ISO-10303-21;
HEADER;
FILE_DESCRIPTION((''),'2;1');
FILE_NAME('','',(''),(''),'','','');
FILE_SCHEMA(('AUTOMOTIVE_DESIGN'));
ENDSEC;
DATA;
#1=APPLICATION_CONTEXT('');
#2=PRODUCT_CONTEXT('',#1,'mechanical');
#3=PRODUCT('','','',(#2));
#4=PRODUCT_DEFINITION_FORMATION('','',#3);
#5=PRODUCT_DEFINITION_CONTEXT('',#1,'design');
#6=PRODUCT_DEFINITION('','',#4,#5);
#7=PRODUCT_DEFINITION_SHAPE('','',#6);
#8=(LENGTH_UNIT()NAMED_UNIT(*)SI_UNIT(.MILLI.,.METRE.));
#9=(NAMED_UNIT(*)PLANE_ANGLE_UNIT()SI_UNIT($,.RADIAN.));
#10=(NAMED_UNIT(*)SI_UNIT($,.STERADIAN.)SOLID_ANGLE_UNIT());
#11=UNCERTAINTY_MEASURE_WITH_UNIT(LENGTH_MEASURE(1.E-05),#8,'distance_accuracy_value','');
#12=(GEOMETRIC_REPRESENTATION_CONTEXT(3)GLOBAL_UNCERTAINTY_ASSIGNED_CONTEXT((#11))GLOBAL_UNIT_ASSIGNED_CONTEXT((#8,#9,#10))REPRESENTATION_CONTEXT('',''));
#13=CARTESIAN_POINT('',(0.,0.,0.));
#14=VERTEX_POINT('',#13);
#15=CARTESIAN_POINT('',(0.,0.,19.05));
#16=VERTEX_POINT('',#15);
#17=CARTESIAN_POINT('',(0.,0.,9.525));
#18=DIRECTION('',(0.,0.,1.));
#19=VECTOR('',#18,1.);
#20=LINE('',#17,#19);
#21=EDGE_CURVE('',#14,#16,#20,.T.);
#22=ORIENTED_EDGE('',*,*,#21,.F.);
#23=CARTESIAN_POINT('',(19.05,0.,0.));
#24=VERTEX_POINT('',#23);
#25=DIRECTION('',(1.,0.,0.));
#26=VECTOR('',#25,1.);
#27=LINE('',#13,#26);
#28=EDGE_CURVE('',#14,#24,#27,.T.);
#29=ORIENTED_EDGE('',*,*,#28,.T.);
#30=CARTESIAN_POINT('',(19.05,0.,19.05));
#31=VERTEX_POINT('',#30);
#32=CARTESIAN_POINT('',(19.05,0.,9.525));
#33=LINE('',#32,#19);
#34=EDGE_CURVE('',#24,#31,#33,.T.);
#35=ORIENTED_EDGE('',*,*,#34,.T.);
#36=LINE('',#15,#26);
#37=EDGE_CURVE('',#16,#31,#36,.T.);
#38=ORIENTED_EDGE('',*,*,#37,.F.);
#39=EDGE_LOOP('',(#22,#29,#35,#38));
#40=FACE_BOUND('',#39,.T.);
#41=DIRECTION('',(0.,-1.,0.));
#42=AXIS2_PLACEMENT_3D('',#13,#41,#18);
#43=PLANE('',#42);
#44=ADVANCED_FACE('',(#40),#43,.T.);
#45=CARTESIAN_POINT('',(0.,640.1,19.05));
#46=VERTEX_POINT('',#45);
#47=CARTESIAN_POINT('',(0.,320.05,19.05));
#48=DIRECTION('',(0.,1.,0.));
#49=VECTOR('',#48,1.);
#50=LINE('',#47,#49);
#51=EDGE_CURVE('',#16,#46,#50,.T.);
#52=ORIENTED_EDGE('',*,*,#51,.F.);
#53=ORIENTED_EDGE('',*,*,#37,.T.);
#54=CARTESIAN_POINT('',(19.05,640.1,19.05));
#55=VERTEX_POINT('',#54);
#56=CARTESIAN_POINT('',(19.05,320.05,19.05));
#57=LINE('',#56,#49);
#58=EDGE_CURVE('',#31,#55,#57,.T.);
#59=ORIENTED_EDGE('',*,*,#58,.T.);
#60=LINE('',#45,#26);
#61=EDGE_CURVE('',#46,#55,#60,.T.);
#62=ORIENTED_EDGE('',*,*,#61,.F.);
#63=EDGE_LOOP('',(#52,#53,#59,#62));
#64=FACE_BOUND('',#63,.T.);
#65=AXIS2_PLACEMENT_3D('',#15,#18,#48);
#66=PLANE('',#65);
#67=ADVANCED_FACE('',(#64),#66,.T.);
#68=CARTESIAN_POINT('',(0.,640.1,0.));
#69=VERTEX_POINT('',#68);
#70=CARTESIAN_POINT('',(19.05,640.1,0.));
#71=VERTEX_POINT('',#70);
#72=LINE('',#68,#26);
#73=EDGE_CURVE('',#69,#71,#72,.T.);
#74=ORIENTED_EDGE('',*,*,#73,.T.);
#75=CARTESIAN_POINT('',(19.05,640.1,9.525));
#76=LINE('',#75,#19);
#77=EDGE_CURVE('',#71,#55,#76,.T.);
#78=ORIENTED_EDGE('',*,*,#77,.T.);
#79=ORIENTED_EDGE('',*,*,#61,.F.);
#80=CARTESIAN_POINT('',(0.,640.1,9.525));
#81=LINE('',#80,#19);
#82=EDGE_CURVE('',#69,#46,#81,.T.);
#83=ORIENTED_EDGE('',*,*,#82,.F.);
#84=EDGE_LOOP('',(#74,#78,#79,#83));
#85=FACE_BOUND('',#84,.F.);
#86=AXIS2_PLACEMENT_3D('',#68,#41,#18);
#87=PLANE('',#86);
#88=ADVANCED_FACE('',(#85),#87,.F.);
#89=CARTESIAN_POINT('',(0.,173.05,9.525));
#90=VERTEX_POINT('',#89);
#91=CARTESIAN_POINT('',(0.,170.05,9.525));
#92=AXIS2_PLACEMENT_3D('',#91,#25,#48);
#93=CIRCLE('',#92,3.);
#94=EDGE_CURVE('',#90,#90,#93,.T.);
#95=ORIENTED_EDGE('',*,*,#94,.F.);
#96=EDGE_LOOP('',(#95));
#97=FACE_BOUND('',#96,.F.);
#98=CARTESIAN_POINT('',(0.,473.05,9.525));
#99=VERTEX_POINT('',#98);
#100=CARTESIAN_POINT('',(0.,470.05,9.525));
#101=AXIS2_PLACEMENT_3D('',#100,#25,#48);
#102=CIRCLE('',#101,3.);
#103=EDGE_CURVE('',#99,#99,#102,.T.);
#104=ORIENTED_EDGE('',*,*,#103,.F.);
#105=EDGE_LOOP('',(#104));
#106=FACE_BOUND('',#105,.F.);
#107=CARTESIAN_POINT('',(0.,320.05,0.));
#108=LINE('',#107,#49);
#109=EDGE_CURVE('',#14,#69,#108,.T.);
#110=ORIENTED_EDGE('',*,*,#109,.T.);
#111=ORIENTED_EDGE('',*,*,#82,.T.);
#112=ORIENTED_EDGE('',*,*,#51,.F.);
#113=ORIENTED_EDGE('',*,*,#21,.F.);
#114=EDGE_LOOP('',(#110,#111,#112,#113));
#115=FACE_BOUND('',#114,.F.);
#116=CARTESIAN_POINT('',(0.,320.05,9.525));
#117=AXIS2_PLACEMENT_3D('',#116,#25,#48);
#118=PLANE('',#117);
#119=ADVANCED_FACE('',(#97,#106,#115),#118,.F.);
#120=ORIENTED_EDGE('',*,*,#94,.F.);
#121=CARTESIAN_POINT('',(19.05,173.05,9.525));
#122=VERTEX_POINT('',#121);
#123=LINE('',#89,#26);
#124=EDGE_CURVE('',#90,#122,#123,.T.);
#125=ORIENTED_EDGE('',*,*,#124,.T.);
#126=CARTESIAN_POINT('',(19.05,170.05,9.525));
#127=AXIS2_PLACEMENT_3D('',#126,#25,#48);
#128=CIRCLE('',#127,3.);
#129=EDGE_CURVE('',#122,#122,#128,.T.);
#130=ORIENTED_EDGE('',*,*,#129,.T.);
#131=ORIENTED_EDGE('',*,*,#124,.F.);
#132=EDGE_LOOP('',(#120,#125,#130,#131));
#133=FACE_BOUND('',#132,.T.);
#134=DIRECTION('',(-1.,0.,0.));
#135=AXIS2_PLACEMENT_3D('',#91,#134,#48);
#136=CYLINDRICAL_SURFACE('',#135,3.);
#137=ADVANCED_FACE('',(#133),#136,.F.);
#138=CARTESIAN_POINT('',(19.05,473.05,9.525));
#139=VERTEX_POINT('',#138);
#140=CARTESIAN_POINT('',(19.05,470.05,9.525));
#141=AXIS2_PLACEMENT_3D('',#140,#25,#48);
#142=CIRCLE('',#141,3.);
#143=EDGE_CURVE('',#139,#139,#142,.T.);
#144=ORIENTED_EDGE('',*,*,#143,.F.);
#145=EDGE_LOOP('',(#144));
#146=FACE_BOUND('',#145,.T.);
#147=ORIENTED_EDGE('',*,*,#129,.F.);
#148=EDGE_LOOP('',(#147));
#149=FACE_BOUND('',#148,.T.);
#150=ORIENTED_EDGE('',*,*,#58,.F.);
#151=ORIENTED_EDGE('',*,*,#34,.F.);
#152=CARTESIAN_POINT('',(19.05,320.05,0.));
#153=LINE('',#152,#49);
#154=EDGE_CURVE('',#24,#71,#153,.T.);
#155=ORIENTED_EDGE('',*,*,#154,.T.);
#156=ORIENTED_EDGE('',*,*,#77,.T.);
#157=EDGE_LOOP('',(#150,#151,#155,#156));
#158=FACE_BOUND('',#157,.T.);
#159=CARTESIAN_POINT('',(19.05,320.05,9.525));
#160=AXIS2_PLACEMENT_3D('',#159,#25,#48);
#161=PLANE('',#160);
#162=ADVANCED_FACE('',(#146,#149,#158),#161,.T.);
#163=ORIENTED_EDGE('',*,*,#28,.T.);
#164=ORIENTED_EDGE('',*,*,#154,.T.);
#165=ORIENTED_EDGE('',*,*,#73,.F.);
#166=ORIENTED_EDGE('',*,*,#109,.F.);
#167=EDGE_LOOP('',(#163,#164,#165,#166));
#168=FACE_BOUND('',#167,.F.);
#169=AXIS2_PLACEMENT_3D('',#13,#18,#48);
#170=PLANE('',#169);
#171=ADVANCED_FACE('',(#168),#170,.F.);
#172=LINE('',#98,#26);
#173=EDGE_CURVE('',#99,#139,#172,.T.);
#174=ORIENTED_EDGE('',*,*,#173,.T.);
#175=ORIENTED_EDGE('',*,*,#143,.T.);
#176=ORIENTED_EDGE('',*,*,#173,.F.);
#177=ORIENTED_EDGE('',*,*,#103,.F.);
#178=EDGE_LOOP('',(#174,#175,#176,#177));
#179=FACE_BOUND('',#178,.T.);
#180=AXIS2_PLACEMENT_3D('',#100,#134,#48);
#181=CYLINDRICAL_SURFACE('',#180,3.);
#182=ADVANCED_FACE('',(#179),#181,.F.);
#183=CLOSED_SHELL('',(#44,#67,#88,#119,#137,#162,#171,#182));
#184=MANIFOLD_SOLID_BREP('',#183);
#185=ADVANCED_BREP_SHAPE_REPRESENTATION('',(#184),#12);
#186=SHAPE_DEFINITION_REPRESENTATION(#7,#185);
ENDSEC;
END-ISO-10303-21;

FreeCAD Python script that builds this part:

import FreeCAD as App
import Part
import Sketcher

doc = App.newDocument("Part")
body = doc.addObject("PartDesign::Body", "Body")

# Sketch on YZ plane
sketch1 = body.newObject("Sketcher::SketchObject", "Sketch")
sketch1.AttachmentSupport = (doc.getObject("YZ_Plane"), [""])
sketch1.MapMode = "FlatFace"
sketch1.addGeometry(Part.LineSegment(App.Vector(0, 19.1, 0), App.Vector(0, 0, 0)), False)
sketch1.addGeometry(Part.LineSegment(App.Vector(0, 0, 0), App.Vector(640.1, 0, 0)), False)
sketch1.addGeometry(Part.LineSegment(App.Vector(640.1, 0, 0), App.Vector(640.1, 19.1, 0)), False)
sketch1.addGeometry(Part.LineSegment(App.Vector(640.1, 19.1, 0), App.Vector(0, 19.1, 0)), False)
sketch1.addGeometry(Part.Circle(App.Vector(170.1, 9.5, 0), App.Vector(0, 0, 1), 3), False)
sketch1.addGeometry(Part.Circle(App.Vector(470.1, 9.5, 0), App.Vector(0, 0, 1), 3), False)
sketch1.addConstraint(Sketcher.Constraint("Coincident", 0, 2, 1, 1))
sketch1.addConstraint(Sketcher.Constraint("Coincident", 1, 2, 2, 1))
sketch1.addConstraint(Sketcher.Constraint("Coincident", 2, 2, 3, 1))
sketch1.addConstraint(Sketcher.Constraint("Coincident", 3, 2, 0, 1))
sketch1.addConstraint(Sketcher.Constraint("Vertical", 0))
sketch1.addConstraint(Sketcher.Constraint("Horizontal", 1))
sketch1.addConstraint(Sketcher.Constraint("Vertical", 2))
sketch1.addConstraint(Sketcher.Constraint("Horizontal", 3))
sketch1.addConstraint(Sketcher.Constraint("Coincident", 0, 2, -1, 1))
sketch1.addConstraint(Sketcher.Constraint("Equal", 4, 5))
sketch1.addConstraint(Sketcher.Constraint("Horizontal", 4, 3, 5, 3))
sketch1.addConstraint(Sketcher.Constraint("Diameter", 4, 6.0))
sketch1.addConstraint(Sketcher.Constraint("DistanceX", 1, 1, 1, 2, 640.1))
sketch1.addConstraint(Sketcher.Constraint("DistanceX", 4, 3, 5, 3, 300.0))
sketch1.addConstraint(Sketcher.Constraint("DistanceY", 0, 2, 0, 1, 19.05))
sketch1.addConstraint(Sketcher.Constraint("DistanceX", -1, 1, 4, 3, 170.05))
sketch1.addConstraint(Sketcher.Constraint("DistanceY", -1, 1, 4, 3, 9.525))
pad1 = body.newObject("PartDesign::Pad", "Pad")
pad1.Profile = sketch1
pad1.Length = 19.05

doc.recompute()
